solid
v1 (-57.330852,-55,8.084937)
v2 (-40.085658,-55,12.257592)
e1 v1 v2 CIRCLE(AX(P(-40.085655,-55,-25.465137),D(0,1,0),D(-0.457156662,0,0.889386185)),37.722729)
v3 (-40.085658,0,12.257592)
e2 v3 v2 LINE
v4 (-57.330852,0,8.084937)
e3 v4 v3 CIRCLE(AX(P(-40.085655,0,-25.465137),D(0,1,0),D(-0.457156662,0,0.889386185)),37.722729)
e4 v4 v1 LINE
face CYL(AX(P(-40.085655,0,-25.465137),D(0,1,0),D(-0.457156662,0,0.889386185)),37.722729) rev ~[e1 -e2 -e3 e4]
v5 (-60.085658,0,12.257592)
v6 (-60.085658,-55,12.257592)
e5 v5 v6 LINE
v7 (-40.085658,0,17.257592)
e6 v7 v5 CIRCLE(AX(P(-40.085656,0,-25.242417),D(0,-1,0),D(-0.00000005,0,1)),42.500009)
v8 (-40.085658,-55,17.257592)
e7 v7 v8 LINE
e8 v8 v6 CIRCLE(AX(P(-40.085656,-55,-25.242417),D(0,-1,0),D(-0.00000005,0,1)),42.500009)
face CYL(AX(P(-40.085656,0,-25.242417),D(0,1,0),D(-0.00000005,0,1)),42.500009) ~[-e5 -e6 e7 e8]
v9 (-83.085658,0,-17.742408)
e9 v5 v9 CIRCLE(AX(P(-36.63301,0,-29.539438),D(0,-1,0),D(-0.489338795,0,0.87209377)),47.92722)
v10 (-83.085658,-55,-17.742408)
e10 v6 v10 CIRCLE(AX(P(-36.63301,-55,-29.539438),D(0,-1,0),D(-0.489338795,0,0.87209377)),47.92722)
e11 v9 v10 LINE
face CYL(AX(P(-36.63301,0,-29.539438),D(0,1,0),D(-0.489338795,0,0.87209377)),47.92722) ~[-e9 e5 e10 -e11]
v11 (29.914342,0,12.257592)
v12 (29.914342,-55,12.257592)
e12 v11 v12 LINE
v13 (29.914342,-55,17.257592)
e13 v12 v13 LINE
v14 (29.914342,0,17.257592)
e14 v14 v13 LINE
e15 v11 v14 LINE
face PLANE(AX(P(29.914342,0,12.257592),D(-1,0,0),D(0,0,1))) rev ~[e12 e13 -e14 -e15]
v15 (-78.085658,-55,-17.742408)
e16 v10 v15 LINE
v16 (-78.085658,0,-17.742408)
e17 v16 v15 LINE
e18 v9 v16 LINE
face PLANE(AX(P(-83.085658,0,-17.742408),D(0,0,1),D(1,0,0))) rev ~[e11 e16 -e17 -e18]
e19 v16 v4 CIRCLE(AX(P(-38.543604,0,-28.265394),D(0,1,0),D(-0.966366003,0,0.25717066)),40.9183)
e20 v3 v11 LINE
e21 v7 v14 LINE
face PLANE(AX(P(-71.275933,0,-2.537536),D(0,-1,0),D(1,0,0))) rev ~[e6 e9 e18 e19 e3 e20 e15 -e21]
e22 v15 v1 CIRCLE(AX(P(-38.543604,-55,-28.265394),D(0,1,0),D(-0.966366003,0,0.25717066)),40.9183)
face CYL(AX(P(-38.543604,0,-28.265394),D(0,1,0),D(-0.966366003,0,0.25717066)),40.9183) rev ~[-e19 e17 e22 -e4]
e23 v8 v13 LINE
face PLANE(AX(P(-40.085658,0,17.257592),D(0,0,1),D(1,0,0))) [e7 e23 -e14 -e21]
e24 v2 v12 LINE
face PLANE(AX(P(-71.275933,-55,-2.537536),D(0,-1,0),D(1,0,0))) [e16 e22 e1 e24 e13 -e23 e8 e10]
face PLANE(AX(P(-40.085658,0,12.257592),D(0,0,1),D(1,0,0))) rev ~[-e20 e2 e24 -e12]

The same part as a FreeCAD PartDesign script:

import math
import FreeCAD as App
import Part
import Sketcher
Q = App.Units.Quantity

doc = App.newDocument("Part")
params = doc.addObject("Spreadsheet::Sheet", "Params")
for row, (alias, value) in enumerate([
    ("sketch1_width", "5 mm"),
    ("sketch1_width2", "70 mm"),
    ("pad1_length", "55 mm"),
], start=1):
    params.set(f"A{row}", alias)
    params.set(f"B{row}", "=" + value)
    params.setAlias(f"B{row}", alias)

body = doc.addObject("PartDesign::Body", "Body")

# Sketch on XZ plane
sketch1 = body.newObject("Sketcher::SketchObject", "Sketch")
sketch1.AttachmentSupport = (doc.getObject("XZ_Plane"), [""])
sketch1.MapMode = "FlatFace"
sketch1.addGeometry([
    Part.ArcOfCircle(Part.Circle(App.Vector(-36.6, -29.5, 0), App.Vector(0, 0, 1), 47.9), math.radians(119), math.radians(166)),  # 0
    Part.LineSegment(App.Vector(-83.1, -17.7, 0), App.Vector(-78.1, -17.7, 0)),  # 1
    Part.ArcOfCircle(Part.Circle(App.Vector(-38.5, -28.3, 0), App.Vector(0, 0, 1), 40.9), math.radians(117), math.radians(165)),  # 2
    Part.ArcOfCircle(Part.Circle(App.Vector(-40.1, -25.5, 0), App.Vector(0, 0, 1), 37.7), math.radians(90), math.radians(117)),  # 3
    Part.LineSegment(App.Vector(-40.1, 12.3, 0), App.Vector(29.9, 12.3, 0)),  # 4
    Part.LineSegment(App.Vector(29.9, 12.3, 0), App.Vector(29.9, 17.3, 0)),  # 5
    Part.LineSegment(App.Vector(29.9, 17.3, 0), App.Vector(-40.1, 17.3, 0)),  # 6
    Part.ArcOfCircle(Part.Circle(App.Vector(-40.1, -25.2, 0), App.Vector(0, 0, 1), 42.5), math.radians(90), math.radians(118)),  # 7
], False)
sketch1.addConstraint([
    Sketcher.Constraint("Coincident", 0, 2, 1, 1),
    Sketcher.Constraint("Coincident", 1, 2, 2, 2),
    Sketcher.Constraint("Coincident", 2, 1, 3, 2),
    Sketcher.Constraint("Tangent", 3, 1, 4, 1),
    Sketcher.Constraint("Coincident", 4, 2, 5, 1),
    Sketcher.Constraint("Coincident", 5, 2, 6, 1),
    Sketcher.Constraint("Tangent", 6, 2, 7, 1),
    Sketcher.Constraint("Coincident", 7, 2, 0, 1),
    Sketcher.Constraint("Horizontal", 1),
    Sketcher.Constraint("Horizontal", 4),
    Sketcher.Constraint("Vertical", 5),
    Sketcher.Constraint("Horizontal", 6),
    Sketcher.Constraint("Horizontal", 4, 2, 7, 2),
    Sketcher.Constraint("Vertical", 3, 3, 7, 3),
    Sketcher.Constraint("Equal", 1, 5),
    Sketcher.Constraint("DistanceX", 1, 1, 1, 2, Q("5 mm")),
    Sketcher.Constraint("DistanceX", 4, 1, 4, 2, Q("70 mm")),
    Sketcher.Constraint("DistanceX", 7, 2, 3, 1, Q("20 mm")),
    Sketcher.Constraint("DistanceX", 1, 2, 7, 2, Q("18 mm")),
    Sketcher.Constraint("DistanceY", 1, 2, 7, 2, Q("30 mm")),
    Sketcher.Constraint("Radius", 2, Q("40.9183 mm")),
    Sketcher.Constraint("Radius", 0, Q("47.92722 mm")),
    Sketcher.Constraint("Radius", 3, Q("37.722729 mm")),
    Sketcher.Constraint("DistanceX", 0, 3, -1, 1, Q("36.63301 mm")),
    Sketcher.Constraint("DistanceY", 0, 3, -1, 1, Q("29.539438 mm")),
    Sketcher.Constraint("DistanceX", 2, 1, -1, 1, Q("57.330852 mm")),
])
sketch1.setExpression("Constraints[15]", "Params.sketch1_width")
sketch1.setExpression("Constraints[16]", "Params.sketch1_width2")
pad1 = body.newObject("PartDesign::Pad", "Pad")
pad1.Profile = sketch1
pad1.setExpression("Length", "Params.pad1_length")

doc.recompute()
